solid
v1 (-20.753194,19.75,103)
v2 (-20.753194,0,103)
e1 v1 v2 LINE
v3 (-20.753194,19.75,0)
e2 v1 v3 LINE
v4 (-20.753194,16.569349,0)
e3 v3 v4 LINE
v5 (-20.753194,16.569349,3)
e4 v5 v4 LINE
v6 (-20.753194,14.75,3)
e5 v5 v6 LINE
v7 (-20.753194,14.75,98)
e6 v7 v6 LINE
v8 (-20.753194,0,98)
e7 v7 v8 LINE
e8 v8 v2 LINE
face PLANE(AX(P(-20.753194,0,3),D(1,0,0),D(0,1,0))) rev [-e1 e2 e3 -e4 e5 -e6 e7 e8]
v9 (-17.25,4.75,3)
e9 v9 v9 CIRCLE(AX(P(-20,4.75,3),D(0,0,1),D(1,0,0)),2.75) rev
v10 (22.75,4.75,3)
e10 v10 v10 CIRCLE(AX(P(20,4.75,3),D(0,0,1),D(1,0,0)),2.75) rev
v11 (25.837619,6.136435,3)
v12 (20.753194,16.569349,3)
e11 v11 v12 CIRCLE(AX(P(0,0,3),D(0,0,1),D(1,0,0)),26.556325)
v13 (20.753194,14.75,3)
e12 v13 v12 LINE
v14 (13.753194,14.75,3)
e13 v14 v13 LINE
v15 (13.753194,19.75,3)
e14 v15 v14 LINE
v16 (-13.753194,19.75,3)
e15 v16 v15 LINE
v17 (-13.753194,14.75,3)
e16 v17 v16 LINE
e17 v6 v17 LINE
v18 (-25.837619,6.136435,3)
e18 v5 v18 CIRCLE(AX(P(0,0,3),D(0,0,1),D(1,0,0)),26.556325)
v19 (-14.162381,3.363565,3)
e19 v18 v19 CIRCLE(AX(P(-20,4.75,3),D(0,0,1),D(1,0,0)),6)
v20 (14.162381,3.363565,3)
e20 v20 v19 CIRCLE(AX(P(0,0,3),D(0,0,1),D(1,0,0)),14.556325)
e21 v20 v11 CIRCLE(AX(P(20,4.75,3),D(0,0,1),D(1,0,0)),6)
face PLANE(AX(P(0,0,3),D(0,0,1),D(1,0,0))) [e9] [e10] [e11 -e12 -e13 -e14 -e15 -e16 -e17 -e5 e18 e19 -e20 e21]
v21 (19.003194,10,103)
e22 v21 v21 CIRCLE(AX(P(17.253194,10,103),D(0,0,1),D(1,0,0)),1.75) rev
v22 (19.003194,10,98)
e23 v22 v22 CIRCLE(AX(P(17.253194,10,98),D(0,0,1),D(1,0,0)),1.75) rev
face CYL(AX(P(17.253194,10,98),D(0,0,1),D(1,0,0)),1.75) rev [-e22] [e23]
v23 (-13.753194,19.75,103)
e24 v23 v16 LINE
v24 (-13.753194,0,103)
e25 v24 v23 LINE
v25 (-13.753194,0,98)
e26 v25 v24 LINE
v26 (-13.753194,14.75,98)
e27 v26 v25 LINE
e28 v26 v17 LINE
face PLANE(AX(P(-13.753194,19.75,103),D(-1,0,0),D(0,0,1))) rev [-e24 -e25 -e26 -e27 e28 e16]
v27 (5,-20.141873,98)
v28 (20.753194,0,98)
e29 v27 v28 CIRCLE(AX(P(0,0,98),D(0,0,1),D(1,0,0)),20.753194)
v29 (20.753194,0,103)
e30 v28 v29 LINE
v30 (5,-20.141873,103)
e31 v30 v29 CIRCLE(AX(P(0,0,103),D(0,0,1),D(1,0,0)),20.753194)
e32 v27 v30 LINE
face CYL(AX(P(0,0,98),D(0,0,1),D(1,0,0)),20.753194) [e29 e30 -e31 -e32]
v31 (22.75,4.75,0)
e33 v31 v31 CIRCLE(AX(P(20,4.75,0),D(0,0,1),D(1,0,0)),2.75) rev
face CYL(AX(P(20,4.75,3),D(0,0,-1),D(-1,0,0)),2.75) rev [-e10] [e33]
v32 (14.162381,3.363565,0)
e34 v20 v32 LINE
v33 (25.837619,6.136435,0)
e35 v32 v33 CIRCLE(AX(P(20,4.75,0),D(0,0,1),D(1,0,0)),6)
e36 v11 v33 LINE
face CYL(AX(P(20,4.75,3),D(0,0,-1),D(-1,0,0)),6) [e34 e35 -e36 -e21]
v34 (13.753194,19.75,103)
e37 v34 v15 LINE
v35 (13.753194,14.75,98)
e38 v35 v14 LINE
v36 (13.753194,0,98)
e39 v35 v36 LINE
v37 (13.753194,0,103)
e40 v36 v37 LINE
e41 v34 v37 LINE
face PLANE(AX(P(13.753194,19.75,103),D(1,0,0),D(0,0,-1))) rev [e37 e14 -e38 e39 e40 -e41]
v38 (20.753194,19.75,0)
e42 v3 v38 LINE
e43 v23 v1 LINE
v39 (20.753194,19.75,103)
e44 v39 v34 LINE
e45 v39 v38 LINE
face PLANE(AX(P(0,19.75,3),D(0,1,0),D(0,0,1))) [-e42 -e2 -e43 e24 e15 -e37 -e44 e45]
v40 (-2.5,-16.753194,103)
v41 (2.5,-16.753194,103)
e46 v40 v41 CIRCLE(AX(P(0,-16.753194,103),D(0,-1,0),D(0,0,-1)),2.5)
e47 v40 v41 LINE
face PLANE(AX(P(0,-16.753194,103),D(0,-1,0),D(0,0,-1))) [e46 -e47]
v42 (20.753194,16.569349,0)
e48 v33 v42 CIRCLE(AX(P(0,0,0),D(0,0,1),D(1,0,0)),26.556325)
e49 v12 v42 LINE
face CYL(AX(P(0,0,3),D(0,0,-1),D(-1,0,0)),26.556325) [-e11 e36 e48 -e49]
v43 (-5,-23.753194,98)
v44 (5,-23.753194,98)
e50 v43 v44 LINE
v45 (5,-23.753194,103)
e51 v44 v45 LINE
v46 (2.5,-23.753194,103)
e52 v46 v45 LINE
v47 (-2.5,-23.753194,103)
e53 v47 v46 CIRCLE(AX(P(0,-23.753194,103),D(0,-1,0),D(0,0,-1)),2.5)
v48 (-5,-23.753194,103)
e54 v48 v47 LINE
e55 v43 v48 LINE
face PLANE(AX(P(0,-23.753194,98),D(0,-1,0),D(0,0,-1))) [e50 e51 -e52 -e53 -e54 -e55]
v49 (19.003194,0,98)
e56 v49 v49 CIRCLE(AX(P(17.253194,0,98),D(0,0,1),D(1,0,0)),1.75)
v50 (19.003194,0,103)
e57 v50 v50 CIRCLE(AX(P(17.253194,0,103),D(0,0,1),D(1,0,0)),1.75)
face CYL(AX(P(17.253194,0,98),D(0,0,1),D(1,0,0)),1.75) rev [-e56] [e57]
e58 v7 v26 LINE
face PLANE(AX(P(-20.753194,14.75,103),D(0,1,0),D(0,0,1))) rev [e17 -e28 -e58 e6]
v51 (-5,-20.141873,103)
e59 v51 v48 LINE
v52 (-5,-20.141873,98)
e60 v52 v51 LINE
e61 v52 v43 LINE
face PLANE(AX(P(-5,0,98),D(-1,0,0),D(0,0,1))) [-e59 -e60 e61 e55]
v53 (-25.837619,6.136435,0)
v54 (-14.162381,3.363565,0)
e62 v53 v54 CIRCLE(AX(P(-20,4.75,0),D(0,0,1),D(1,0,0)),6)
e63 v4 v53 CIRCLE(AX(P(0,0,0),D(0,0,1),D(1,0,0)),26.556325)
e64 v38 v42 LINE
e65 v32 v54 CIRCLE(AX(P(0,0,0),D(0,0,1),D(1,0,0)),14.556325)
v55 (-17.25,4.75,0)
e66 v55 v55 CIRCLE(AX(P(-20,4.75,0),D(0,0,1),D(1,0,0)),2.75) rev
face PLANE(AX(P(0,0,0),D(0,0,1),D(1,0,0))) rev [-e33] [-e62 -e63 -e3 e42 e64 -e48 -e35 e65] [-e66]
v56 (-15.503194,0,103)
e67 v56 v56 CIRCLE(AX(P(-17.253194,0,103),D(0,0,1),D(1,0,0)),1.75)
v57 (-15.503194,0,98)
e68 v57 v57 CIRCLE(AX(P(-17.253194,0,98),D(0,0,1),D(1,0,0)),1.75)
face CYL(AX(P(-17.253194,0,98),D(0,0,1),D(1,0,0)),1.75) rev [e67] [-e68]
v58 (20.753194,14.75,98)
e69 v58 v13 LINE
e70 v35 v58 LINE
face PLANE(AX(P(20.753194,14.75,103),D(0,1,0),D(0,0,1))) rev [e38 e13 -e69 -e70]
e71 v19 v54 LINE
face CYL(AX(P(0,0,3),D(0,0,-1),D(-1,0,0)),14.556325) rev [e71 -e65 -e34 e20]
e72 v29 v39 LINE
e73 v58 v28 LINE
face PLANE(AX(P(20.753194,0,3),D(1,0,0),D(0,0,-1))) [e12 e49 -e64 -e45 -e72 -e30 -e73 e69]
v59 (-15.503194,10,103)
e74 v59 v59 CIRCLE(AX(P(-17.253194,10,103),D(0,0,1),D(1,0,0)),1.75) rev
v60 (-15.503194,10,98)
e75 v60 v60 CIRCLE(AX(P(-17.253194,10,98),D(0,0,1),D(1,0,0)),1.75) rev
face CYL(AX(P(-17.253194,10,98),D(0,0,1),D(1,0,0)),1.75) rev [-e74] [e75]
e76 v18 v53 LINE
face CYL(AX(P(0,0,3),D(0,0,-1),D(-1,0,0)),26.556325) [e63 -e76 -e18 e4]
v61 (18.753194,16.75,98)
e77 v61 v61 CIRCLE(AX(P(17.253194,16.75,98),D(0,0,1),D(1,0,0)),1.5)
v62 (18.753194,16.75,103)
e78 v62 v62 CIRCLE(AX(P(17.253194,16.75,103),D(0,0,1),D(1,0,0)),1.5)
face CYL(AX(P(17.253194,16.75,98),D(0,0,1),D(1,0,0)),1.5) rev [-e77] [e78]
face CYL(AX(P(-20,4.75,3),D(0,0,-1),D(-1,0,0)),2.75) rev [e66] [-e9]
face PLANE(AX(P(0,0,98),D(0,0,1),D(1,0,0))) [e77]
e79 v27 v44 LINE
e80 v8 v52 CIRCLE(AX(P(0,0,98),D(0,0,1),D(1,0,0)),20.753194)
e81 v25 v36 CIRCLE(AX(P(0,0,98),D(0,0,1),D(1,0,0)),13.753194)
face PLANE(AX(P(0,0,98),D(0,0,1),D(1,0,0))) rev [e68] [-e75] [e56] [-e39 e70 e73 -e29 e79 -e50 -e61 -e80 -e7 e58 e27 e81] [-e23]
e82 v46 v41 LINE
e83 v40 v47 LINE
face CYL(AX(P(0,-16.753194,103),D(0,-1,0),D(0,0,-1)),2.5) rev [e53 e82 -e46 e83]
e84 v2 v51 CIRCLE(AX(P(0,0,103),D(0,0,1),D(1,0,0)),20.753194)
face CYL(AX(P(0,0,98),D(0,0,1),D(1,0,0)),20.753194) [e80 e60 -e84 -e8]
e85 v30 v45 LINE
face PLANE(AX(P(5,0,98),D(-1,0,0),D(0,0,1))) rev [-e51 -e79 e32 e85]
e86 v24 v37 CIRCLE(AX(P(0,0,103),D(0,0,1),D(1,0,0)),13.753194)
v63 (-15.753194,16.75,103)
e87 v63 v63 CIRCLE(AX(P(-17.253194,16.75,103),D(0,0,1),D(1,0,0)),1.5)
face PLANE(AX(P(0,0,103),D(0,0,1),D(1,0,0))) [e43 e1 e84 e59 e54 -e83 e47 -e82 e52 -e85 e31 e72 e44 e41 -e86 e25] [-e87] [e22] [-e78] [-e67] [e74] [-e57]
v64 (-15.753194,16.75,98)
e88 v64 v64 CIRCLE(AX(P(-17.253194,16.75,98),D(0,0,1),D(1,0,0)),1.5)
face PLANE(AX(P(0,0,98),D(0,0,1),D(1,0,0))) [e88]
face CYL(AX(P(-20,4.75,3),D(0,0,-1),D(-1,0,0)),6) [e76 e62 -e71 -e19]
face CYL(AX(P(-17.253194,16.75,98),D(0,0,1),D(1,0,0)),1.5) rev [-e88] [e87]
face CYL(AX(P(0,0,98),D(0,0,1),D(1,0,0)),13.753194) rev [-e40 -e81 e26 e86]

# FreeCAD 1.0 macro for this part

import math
import FreeCAD as App
import Part
import Sketcher
from FreeCAD import Vector
Q = App.Units.Quantity


def add_polygon(sketch, points):
    """Adds a closed chain of lines whose ends are joined by coincident constraints."""
    first, n = sketch.GeometryCount, len(points)
    for a, b in zip(points, points[1:] + points[:1]):
        sketch.addGeometry(Part.LineSegment(App.Vector(*a, 0), App.Vector(*b, 0)), False)
    for i in range(n):
        sketch.addConstraint(Sketcher.Constraint("Coincident", first + i, 2, first + (i + 1) % n, 1))

doc = App.newDocument("Part")
body = doc.addObject("PartDesign::Body", "Body")

# Sketch on XY plane
sketch1 = doc.addObject("Sketcher::SketchObject", "Sketch")
body.addObject(sketch1)
sketch1.AttachmentSupport = (doc.XY_Plane, [""])
sketch1.MapMode = "FlatFace"
sketch1.addGeometry(Part.LineSegment(Vector(-20.8, 19.8, 0), Vector(-20.8, 16.6, 0)), False)
sketch1.addGeometry(Part.ArcOfCircle(Part.Circle(Vector(0, 0, 0), Vector(0, 0, 1), 26.6), math.radians(141), math.radians(167)), False)
sketch1.addGeometry(Part.ArcOfCircle(Part.Circle(Vector(-20, 4.8, 0), Vector(0, 0, 1), 6), math.radians(167), math.radians(347)), False)
sketch1.addGeometry(Part.ArcOfCircle(Part.Circle(Vector(0, 0, 0), Vector(0, 0, 1), 14.6), math.radians(13), math.radians(167)), False)
sketch1.addGeometry(Part.ArcOfCircle(Part.Circle(Vector(20, 4.8, 0), Vector(0, 0, 1), 6), math.radians(-167), math.radians(13)), False)
sketch1.addGeometry(Part.ArcOfCircle(Part.Circle(Vector(0, 0, 0), Vector(0, 0, 1), 26.6), math.radians(13), math.radians(39)), False)
sketch1.addGeometry(Part.LineSegment(Vector(20.8, 16.6, 0), Vector(20.8, 19.8, 0)), False)
sketch1.addGeometry(Part.LineSegment(Vector(20.8, 19.8, 0), Vector(-20.8, 19.8, 0)), False)
sketch1.addGeometry(Part.Circle(Vector(-20, 4.8, 0), Vector(0, 0, 1), 2.8), False)
sketch1.addGeometry(Part.Circle(Vector(20, 4.8, 0), Vector(0, 0, 1), 2.8), False)
sketch1.addConstraint(Sketcher.Constraint("Coincident", 0, 2, 1, 1))
sketch1.addConstraint(Sketcher.Constraint("Tangent", 1, 2, 2, 1))
sketch1.addConstraint(Sketcher.Constraint("Tangent", 2, 2, 3, 2))
sketch1.addConstraint(Sketcher.Constraint("Tangent", 3, 1, 4, 1))
sketch1.addConstraint(Sketcher.Constraint("Tangent", 4, 2, 5, 1))
sketch1.addConstraint(Sketcher.Constraint("Coincident", 5, 2, 6, 1))
sketch1.addConstraint(Sketcher.Constraint("Coincident", 6, 2, 7, 1))
sketch1.addConstraint(Sketcher.Constraint("Coincident", 7, 2, 0, 1))
sketch1.addConstraint(Sketcher.Constraint("Vertical", 0))
sketch1.addConstraint(Sketcher.Constraint("Vertical", 6))
sketch1.addConstraint(Sketcher.Constraint("Horizontal", 7))
sketch1.addConstraint(Sketcher.Constraint("Coincident", 1, 3, -1, 1))
sketch1.addConstraint(Sketcher.Constraint("Coincident", 3, 3, -1, 1))
sketch1.addConstraint(Sketcher.Constraint("Coincident", 5, 3, -1, 1))
sketch1.addConstraint(Sketcher.Constraint("Coincident", 8, 3, 2, 3))
sketch1.addConstraint(Sketcher.Constraint("Coincident", 9, 3, 4, 3))
sketch1.addConstraint(Sketcher.Constraint("Equal", 2, 4))
sketch1.addConstraint(Sketcher.Constraint("Equal", 8, 9))
sketch1.addConstraint(Sketcher.Constraint("Horizontal", 2, 3, 4, 3))
sketch1.addConstraint(Sketcher.Constraint("Horizontal", 0, 2, 5, 2))
sketch1.addConstraint(Sketcher.Constraint("Radius", 2, Q("6 mm")))
sketch1.addConstraint(Sketcher.Constraint("Diameter", 8, Q("5.5 mm")))
sketch1.addConstraint(Sketcher.Constraint("DistanceX", 2, 3, -1, 1, Q("20 mm")))
sketch1.addConstraint(Sketcher.Constraint("DistanceY", 4, 3, 6, 2, Q("15 mm")))
sketch1.addConstraint(Sketcher.Constraint("DistanceY", -1, 1, 2, 3, Q("4.75 mm")))
sketch1.addConstraint(Sketcher.Constraint("DistanceX", 7, 2, 7, 1, Q("41.506388 mm")))
pad1 = doc.addObject("PartDesign::Pad", "Pad")
body.addObject(pad1)
pad1.Profile = sketch1
pad1.Length = 3

# Sketch on XY plane
sketch2 = doc.addObject("Sketcher::SketchObject", "Sketch001")
body.addObject(sketch2)
sketch2.AttachmentSupport = (doc.XY_Plane, [""])
sketch2.MapMode = "FlatFace"
sketch2.AttachmentOffset = App.Placement(Vector(0, 0, 3), App.Rotation())
add_polygon(sketch2, [(-21, 20), (-21, 15), (-14, 15), (-14, 20)])  # lines 0-3
add_polygon(sketch2, [(14, 20), (14, 15), (21, 15), (21, 20)])  # lines 4-7
sketch2.addConstraint(Sketcher.Constraint("Vertical", 0))
sketch2.addConstraint(Sketcher.Constraint("Horizontal", 1))
sketch2.addConstraint(Sketcher.Constraint("Vertical", 2))
sketch2.addConstraint(Sketcher.Constraint("Horizontal", 3))
sketch2.addConstraint(Sketcher.Constraint("Vertical", 4))
sketch2.addConstraint(Sketcher.Constraint("Horizontal", 5))
sketch2.addConstraint(Sketcher.Constraint("Vertical", 6))
sketch2.addConstraint(Sketcher.Constraint("Horizontal", 7))
sketch2.addConstraint(Sketcher.Constraint("Symmetric", 1, 2, 4, 2, -2))
sketch2.addConstraint(Sketcher.Constraint("Symmetric", 3, 2, 6, 2, -2))
sketch2.addConstraint(Sketcher.Constraint("DistanceX", 1, 1, 1, 2, Q("7 mm")))
sketch2.addConstraint(Sketcher.Constraint("DistanceY", 0, 2, 0, 1, Q("5 mm")))
sketch2.addConstraint(Sketcher.Constraint("DistanceY", -1, 1, 0, 2, Q("14.75 mm")))
sketch2.addConstraint(Sketcher.Constraint("DistanceX", 1, 2, 4, 2, Q("27.506388 mm")))
pad2 = doc.addObject("PartDesign::Pad", "Pad001")
body.addObject(pad2)
pad2.Profile = sketch2
pad2.Length = 100

# Sketch on XY plane
sketch3 = doc.addObject("Sketcher::SketchObject", "Sketch002")
body.addObject(sketch3)
sketch3.AttachmentSupport = (doc.XY_Plane, [""])
sketch3.MapMode = "FlatFace"
sketch3.AttachmentOffset = App.Placement(Vector(0, 0, 103), App.Rotation())
sketch3.addGeometry(Part.LineSegment(Vector(20.8, 19.8, 0), Vector(13.8, 19.8, 0)), False)
sketch3.addGeometry(Part.LineSegment(Vector(13.8, 19.8, 0), Vector(13.8, 0, 0)), False)
sketch3.addGeometry(Part.ArcOfCircle(Part.Circle(Vector(0, 0, 0), Vector(0, 0, 1), 13.8), math.radians(180), math.radians(360)), False)
sketch3.addGeometry(Part.LineSegment(Vector(-13.8, 0, 0), Vector(-13.8, 19.8, 0)), False)
sketch3.addGeometry(Part.LineSegment(Vector(-13.8, 19.8, 0), Vector(-20.8, 19.8, 0)), False)
sketch3.addGeometry(Part.LineSegment(Vector(-20.8, 19.8, 0), Vector(-20.8, 0, 0)), False)
sketch3.addGeometry(Part.ArcOfCircle(Part.Circle(Vector(0, 0, 0), Vector(0, 0, 1), 20.8), math.radians(180), math.radians(256)), False)
sketch3.addGeometry(Part.LineSegment(Vector(-5, -20.1, 0), Vector(-5, -23.8, 0)), False)
sketch3.addGeometry(Part.LineSegment(Vector(-5, -23.8, 0), Vector(5, -23.8, 0)), False)
sketch3.addGeometry(Part.LineSegment(Vector(5, -23.8, 0), Vector(5, -20.1, 0)), False)
sketch3.addGeometry(Part.ArcOfCircle(Part.Circle(Vector(0, 0, 0), Vector(0, 0, 1), 20.8), math.radians(-76), math.radians(0)), False)
sketch3.addGeometry(Part.LineSegment(Vector(20.8, 0, 0), Vector(20.8, 19.8, 0)), False)
sketch3.addConstraint(Sketcher.Constraint("Coincident", 0, 2, 1, 1))
sketch3.addConstraint(Sketcher.Constraint("Tangent", 1, 2, 2, 2))
sketch3.addConstraint(Sketcher.Constraint("Tangent", 2, 1, 3, 1))
sketch3.addConstraint(Sketcher.Constraint("Coincident", 3, 2, 4, 1))
sketch3.addConstraint(Sketcher.Constraint("Coincident", 4, 2, 5, 1))
sketch3.addConstraint(Sketcher.Constraint("Tangent", 5, 2, 6, 1))
sketch3.addConstraint(Sketcher.Constraint("Coincident", 6, 2, 7, 1))
sketch3.addConstraint(Sketcher.Constraint("Coincident", 7, 2, 8, 1))
sketch3.addConstraint(Sketcher.Constraint("Coincident", 8, 2, 9, 1))
sketch3.addConstraint(Sketcher.Constraint("Coincident", 9, 2, 10, 1))
sketch3.addConstraint(Sketcher.Constraint("Tangent", 10, 2, 11, 1))
sketch3.addConstraint(Sketcher.Constraint("Coincident", 11, 2, 0, 1))
sketch3.addConstraint(Sketcher.Constraint("Horizontal", 0))
sketch3.addConstraint(Sketcher.Constraint("Vertical", 1))
sketch3.addConstraint(Sketcher.Constraint("Vertical", 3))
sketch3.addConstraint(Sketcher.Constraint("Horizontal", 4))
sketch3.addConstraint(Sketcher.Constraint("Vertical", 5))
sketch3.addConstraint(Sketcher.Constraint("Vertical", 7))
sketch3.addConstraint(Sketcher.Constraint("Horizontal", 8))
sketch3.addConstraint(Sketcher.Constraint("Vertical", 9))
sketch3.addConstraint(Sketcher.Constraint("Vertical", 11))
sketch3.addConstraint(Sketcher.Constraint("Coincident", 2, 3, -1, 1))
sketch3.addConstraint(Sketcher.Constraint("Coincident", 6, 3, -1, 1))
sketch3.addConstraint(Sketcher.Constraint("Coincident", 10, 3, -1, 1))
sketch3.addConstraint(Sketcher.Constraint("Equal", 6, 10))
sketch3.addConstraint(Sketcher.Constraint("Horizontal", 0, 2, 3, 2))
sketch3.addConstraint(Sketcher.Constraint("Horizontal", 6, 2, 9, 2))
sketch3.addConstraint(Sketcher.Constraint("DistanceX", 0, 2, 0, 1, Q("7 mm")))
sketch3.addConstraint(Sketcher.Constraint("DistanceX", 8, 1, 8, 2, Q("10 mm")))
sketch3.addConstraint(Sketcher.Constraint("DistanceY", 1, 2, 1, 1, Q("19.75 mm")))
sketch3.addConstraint(Sketcher.Constraint("Radius", 2, Q("13.753194 mm")))
sketch3.addConstraint(Sketcher.Constraint("DistanceY", 7, 2, 7, 1, Q("3.611321 mm")))
pad3 = doc.addObject("PartDesign::Pad", "Pad002")
body.addObject(pad3)
pad3.Profile = sketch3
pad3.Length = 5
pad3.Reversed = True

# Sketch on XY plane
sketch4 = doc.addObject("Sketcher::SketchObject", "Sketch003")
body.addObject(sketch4)
sketch4.AttachmentSupport = (doc.XY_Plane, [""])
sketch4.MapMode = "FlatFace"
sketch4.AttachmentOffset = App.Placement(Vector(0, 0, 103), App.Rotation())
sketch4.addGeometry(Part.Circle(Vector(-17.3, 10, 0), Vector(0, 0, 1), 1.8), False)
sketch4.addGeometry(Part.Circle(Vector(17.3, 10, 0), Vector(0, 0, 1), 1.8), False)
sketch4.addGeometry(Part.Circle(Vector(17.3, 0, 0), Vector(0, 0, 1), 1.8), False)
sketch4.addGeometry(Part.Circle(Vector(-17.3, 0, 0), Vector(0, 0, 1), 1.8), False)
sketch4.addConstraint(Sketcher.Constraint("Equal", 0, 1))
sketch4.addConstraint(Sketcher.Constraint("Equal", 1, 2))
sketch4.addConstraint(Sketcher.Constraint("Equal", 2, 3))
sketch4.addConstraint(Sketcher.Constraint("Symmetric", 2, 3, 3, 3, -1, 1))
sketch4.addConstraint(Sketcher.Constraint("Symmetric", 0, 3, 1, 3, -2))
sketch4.addConstraint(Sketcher.Constraint("PointOnObject", 2, 3, -1))
sketch4.addConstraint(Sketcher.Constraint("Vertical", 1, 3, 2, 3))
sketch4.addConstraint(Sketcher.Constraint("Diameter", 0, Q("3.5 mm")))
sketch4.addConstraint(Sketcher.Constraint("DistanceY", -1, 1, 0, 3, Q("10 mm")))
sketch4.addConstraint(Sketcher.Constraint("DistanceX", 0, 3, 1, 3, Q("34.506388 mm")))
pocket1 = doc.addObject("PartDesign::Pocket", "Pocket")
body.addObject(pocket1)
pocket1.Profile = sketch4
pocket1.Length = 5

# Sketch on XY plane
sketch5 = doc.addObject("Sketcher::SketchObject", "Sketch004")
body.addObject(sketch5)
sketch5.AttachmentSupport = (doc.XY_Plane, [""])
sketch5.MapMode = "FlatFace"
sketch5.AttachmentOffset = App.Placement(Vector(0, 0, 103), App.Rotation())
sketch5.addGeometry(Part.Circle(Vector(-17.3, 16.8, 0), Vector(0, 0, 1), 1.5), False)
sketch5.addGeometry(Part.Circle(Vector(17.3, 16.8, 0), Vector(0, 0, 1), 1.5), False)
sketch5.addConstraint(Sketcher.Constraint("Equal", 0, 1))
sketch5.addConstraint(Sketcher.Constraint("Symmetric", 0, 3, 1, 3, -2))
sketch5.addConstraint(Sketcher.Constraint("Diameter", 0, Q("3 mm")))
sketch5.addConstraint(Sketcher.Constraint("DistanceY", -1, 1, 0, 3, Q("16.75 mm")))
sketch5.addConstraint(Sketcher.Constraint("DistanceX", 0, 3, 1, 3, Q("34.506388 mm")))
pocket2 = doc.addObject("PartDesign::Pocket", "Pocket001")
body.addObject(pocket2)
pocket2.Profile = sketch5
pocket2.Length = 5

# Sketch on XZ plane
sketch6 = doc.addObject("Sketcher::SketchObject", "Sketch005")
body.addObject(sketch6)
sketch6.AttachmentSupport = (doc.XZ_Plane, [""])
sketch6.MapMode = "FlatFace"
sketch6.AttachmentOffset = App.Placement(Vector(0, 0, 23.753194), App.Rotation())
sketch6.addGeometry(Part.Circle(Vector(0, 103, 0), Vector(0, 0, 1), 2.5), False)
sketch6.addConstraint(Sketcher.Constraint("PointOnObject", 0, 3, -2))
sketch6.addConstraint(Sketcher.Constraint("Diameter", 0, Q("5 mm")))
sketch6.addConstraint(Sketcher.Constraint("DistanceY", -1, 1, 0, 3, Q("103 mm")))
pocket3 = doc.addObject("PartDesign::Pocket", "Pocket002")
body.addObject(pocket3)
pocket3.Profile = sketch6
pocket3.Length = 7

doc.recompute()
